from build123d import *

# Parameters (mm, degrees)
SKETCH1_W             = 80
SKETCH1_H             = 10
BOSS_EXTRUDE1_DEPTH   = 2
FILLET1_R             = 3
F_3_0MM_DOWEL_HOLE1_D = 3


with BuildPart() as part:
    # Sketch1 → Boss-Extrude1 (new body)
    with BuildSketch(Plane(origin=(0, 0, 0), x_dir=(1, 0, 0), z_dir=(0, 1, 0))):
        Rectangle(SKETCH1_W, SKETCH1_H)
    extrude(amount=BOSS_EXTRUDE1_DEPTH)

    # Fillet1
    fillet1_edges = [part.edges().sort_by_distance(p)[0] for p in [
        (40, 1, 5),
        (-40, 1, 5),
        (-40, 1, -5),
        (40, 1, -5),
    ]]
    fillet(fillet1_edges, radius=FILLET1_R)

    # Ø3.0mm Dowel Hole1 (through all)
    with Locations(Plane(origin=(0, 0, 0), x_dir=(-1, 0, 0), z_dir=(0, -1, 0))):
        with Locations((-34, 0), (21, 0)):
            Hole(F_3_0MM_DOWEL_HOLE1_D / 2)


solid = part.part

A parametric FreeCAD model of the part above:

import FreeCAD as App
import Part
import Sketcher

V = App.Vector
Q = App.Units.Quantity


def edges_at(feature, points):
    """Names of the edges that pass closest to the given points."""
    edges = feature.Shape.Edges
    near = lambda p: min(range(len(edges)), key=lambda i: edges[i].distToShape(Part.Vertex(*p))[0])
    return sorted({f"Edge{near(p) + 1}" for p in points})

doc = App.newDocument("Part")
body = doc.addObject("PartDesign::Body", "Body")

# Sketch on XZ plane
sketch1 = body.newObject("Sketcher::SketchObject", "Sketch")
sketch1.AttachmentSupport = (doc.getObject("XZ_Plane"), [""])
sketch1.MapMode = "FlatFace"
sketch1.addGeometry([
    Part.LineSegment(V(-40, -5, 0), V(-40, 5, 0)),
    Part.LineSegment(V(-40, 5, 0), V(40, 5, 0)),
    Part.LineSegment(V(40, 5, 0), V(40, -5, 0)),
    Part.LineSegment(V(40, -5, 0), V(-40, -5, 0)),
], False)
sketch1.addConstraint([
    Sketcher.Constraint("Coincident", 0, 2, 1, 1),
    Sketcher.Constraint("Coincident", 1, 2, 2, 1),
    Sketcher.Constraint("Coincident", 2, 2, 3, 1),
    Sketcher.Constraint("Coincident", 3, 2, 0, 1),
    Sketcher.Constraint("Vertical", 0),
    Sketcher.Constraint("Horizontal", 1),
    Sketcher.Constraint("Vertical", 2),
    Sketcher.Constraint("Horizontal", 3),
    Sketcher.Constraint("Symmetric", 0, 2, 2, 2, -1, 1),
    Sketcher.Constraint("DistanceX", 1, 1, 1, 2, Q("80 mm")),
    Sketcher.Constraint("DistanceY", 0, 1, 0, 2, Q("10 mm")),
])
pad1 = body.newObject("PartDesign::Pad", "Pad")
pad1.Profile = sketch1
pad1.Length = 2
pad1.Reversed = True
doc.recompute()

fillet = body.newObject("PartDesign::Fillet", "Fillet")
fillet.Base = (pad1, edges_at(pad1, [
    (40, 1, 5),
    (-40, 1, 5),
    (-40, 1, -5),
    (40, 1, -5),
]))
fillet.Radius = 3

# Sketch on XZ plane
sketch2 = body.newObject("Sketcher::SketchObject", "Sketch001")
sketch2.AttachmentSupport = (doc.getObject("XZ_Plane"), [""])
sketch2.MapMode = "FlatFace"
sketch2.addGeometry([
    Part.Circle(V(34, 0, 0), V(0, 0, 1), 1.5),
    Part.Circle(V(-21, 0, 0), V(0, 0, 1), 1.5),
], False)
sketch2.addConstraint([
    Sketcher.Constraint("Equal", 0, 1),
    Sketcher.Constraint("PointOnObject", 0, 3, -1),
    Sketcher.Constraint("PointOnObject", 1, 3, -1),
    Sketcher.Constraint("Diameter", 0, Q("3 mm")),
    Sketcher.Constraint("DistanceX", -1, 1, 0, 3, Q("34 mm")),
    Sketcher.Constraint("DistanceX", 1, 3, -1, 1, Q("21 mm")),
])
doc.recompute()
hole = body.newObject("PartDesign::Hole", "Hole")
hole.Profile = sketch2
hole.ThreadType = "None"
hole.Diameter = 3
hole.DepthType = "ThroughAll"

doc.recompute()
